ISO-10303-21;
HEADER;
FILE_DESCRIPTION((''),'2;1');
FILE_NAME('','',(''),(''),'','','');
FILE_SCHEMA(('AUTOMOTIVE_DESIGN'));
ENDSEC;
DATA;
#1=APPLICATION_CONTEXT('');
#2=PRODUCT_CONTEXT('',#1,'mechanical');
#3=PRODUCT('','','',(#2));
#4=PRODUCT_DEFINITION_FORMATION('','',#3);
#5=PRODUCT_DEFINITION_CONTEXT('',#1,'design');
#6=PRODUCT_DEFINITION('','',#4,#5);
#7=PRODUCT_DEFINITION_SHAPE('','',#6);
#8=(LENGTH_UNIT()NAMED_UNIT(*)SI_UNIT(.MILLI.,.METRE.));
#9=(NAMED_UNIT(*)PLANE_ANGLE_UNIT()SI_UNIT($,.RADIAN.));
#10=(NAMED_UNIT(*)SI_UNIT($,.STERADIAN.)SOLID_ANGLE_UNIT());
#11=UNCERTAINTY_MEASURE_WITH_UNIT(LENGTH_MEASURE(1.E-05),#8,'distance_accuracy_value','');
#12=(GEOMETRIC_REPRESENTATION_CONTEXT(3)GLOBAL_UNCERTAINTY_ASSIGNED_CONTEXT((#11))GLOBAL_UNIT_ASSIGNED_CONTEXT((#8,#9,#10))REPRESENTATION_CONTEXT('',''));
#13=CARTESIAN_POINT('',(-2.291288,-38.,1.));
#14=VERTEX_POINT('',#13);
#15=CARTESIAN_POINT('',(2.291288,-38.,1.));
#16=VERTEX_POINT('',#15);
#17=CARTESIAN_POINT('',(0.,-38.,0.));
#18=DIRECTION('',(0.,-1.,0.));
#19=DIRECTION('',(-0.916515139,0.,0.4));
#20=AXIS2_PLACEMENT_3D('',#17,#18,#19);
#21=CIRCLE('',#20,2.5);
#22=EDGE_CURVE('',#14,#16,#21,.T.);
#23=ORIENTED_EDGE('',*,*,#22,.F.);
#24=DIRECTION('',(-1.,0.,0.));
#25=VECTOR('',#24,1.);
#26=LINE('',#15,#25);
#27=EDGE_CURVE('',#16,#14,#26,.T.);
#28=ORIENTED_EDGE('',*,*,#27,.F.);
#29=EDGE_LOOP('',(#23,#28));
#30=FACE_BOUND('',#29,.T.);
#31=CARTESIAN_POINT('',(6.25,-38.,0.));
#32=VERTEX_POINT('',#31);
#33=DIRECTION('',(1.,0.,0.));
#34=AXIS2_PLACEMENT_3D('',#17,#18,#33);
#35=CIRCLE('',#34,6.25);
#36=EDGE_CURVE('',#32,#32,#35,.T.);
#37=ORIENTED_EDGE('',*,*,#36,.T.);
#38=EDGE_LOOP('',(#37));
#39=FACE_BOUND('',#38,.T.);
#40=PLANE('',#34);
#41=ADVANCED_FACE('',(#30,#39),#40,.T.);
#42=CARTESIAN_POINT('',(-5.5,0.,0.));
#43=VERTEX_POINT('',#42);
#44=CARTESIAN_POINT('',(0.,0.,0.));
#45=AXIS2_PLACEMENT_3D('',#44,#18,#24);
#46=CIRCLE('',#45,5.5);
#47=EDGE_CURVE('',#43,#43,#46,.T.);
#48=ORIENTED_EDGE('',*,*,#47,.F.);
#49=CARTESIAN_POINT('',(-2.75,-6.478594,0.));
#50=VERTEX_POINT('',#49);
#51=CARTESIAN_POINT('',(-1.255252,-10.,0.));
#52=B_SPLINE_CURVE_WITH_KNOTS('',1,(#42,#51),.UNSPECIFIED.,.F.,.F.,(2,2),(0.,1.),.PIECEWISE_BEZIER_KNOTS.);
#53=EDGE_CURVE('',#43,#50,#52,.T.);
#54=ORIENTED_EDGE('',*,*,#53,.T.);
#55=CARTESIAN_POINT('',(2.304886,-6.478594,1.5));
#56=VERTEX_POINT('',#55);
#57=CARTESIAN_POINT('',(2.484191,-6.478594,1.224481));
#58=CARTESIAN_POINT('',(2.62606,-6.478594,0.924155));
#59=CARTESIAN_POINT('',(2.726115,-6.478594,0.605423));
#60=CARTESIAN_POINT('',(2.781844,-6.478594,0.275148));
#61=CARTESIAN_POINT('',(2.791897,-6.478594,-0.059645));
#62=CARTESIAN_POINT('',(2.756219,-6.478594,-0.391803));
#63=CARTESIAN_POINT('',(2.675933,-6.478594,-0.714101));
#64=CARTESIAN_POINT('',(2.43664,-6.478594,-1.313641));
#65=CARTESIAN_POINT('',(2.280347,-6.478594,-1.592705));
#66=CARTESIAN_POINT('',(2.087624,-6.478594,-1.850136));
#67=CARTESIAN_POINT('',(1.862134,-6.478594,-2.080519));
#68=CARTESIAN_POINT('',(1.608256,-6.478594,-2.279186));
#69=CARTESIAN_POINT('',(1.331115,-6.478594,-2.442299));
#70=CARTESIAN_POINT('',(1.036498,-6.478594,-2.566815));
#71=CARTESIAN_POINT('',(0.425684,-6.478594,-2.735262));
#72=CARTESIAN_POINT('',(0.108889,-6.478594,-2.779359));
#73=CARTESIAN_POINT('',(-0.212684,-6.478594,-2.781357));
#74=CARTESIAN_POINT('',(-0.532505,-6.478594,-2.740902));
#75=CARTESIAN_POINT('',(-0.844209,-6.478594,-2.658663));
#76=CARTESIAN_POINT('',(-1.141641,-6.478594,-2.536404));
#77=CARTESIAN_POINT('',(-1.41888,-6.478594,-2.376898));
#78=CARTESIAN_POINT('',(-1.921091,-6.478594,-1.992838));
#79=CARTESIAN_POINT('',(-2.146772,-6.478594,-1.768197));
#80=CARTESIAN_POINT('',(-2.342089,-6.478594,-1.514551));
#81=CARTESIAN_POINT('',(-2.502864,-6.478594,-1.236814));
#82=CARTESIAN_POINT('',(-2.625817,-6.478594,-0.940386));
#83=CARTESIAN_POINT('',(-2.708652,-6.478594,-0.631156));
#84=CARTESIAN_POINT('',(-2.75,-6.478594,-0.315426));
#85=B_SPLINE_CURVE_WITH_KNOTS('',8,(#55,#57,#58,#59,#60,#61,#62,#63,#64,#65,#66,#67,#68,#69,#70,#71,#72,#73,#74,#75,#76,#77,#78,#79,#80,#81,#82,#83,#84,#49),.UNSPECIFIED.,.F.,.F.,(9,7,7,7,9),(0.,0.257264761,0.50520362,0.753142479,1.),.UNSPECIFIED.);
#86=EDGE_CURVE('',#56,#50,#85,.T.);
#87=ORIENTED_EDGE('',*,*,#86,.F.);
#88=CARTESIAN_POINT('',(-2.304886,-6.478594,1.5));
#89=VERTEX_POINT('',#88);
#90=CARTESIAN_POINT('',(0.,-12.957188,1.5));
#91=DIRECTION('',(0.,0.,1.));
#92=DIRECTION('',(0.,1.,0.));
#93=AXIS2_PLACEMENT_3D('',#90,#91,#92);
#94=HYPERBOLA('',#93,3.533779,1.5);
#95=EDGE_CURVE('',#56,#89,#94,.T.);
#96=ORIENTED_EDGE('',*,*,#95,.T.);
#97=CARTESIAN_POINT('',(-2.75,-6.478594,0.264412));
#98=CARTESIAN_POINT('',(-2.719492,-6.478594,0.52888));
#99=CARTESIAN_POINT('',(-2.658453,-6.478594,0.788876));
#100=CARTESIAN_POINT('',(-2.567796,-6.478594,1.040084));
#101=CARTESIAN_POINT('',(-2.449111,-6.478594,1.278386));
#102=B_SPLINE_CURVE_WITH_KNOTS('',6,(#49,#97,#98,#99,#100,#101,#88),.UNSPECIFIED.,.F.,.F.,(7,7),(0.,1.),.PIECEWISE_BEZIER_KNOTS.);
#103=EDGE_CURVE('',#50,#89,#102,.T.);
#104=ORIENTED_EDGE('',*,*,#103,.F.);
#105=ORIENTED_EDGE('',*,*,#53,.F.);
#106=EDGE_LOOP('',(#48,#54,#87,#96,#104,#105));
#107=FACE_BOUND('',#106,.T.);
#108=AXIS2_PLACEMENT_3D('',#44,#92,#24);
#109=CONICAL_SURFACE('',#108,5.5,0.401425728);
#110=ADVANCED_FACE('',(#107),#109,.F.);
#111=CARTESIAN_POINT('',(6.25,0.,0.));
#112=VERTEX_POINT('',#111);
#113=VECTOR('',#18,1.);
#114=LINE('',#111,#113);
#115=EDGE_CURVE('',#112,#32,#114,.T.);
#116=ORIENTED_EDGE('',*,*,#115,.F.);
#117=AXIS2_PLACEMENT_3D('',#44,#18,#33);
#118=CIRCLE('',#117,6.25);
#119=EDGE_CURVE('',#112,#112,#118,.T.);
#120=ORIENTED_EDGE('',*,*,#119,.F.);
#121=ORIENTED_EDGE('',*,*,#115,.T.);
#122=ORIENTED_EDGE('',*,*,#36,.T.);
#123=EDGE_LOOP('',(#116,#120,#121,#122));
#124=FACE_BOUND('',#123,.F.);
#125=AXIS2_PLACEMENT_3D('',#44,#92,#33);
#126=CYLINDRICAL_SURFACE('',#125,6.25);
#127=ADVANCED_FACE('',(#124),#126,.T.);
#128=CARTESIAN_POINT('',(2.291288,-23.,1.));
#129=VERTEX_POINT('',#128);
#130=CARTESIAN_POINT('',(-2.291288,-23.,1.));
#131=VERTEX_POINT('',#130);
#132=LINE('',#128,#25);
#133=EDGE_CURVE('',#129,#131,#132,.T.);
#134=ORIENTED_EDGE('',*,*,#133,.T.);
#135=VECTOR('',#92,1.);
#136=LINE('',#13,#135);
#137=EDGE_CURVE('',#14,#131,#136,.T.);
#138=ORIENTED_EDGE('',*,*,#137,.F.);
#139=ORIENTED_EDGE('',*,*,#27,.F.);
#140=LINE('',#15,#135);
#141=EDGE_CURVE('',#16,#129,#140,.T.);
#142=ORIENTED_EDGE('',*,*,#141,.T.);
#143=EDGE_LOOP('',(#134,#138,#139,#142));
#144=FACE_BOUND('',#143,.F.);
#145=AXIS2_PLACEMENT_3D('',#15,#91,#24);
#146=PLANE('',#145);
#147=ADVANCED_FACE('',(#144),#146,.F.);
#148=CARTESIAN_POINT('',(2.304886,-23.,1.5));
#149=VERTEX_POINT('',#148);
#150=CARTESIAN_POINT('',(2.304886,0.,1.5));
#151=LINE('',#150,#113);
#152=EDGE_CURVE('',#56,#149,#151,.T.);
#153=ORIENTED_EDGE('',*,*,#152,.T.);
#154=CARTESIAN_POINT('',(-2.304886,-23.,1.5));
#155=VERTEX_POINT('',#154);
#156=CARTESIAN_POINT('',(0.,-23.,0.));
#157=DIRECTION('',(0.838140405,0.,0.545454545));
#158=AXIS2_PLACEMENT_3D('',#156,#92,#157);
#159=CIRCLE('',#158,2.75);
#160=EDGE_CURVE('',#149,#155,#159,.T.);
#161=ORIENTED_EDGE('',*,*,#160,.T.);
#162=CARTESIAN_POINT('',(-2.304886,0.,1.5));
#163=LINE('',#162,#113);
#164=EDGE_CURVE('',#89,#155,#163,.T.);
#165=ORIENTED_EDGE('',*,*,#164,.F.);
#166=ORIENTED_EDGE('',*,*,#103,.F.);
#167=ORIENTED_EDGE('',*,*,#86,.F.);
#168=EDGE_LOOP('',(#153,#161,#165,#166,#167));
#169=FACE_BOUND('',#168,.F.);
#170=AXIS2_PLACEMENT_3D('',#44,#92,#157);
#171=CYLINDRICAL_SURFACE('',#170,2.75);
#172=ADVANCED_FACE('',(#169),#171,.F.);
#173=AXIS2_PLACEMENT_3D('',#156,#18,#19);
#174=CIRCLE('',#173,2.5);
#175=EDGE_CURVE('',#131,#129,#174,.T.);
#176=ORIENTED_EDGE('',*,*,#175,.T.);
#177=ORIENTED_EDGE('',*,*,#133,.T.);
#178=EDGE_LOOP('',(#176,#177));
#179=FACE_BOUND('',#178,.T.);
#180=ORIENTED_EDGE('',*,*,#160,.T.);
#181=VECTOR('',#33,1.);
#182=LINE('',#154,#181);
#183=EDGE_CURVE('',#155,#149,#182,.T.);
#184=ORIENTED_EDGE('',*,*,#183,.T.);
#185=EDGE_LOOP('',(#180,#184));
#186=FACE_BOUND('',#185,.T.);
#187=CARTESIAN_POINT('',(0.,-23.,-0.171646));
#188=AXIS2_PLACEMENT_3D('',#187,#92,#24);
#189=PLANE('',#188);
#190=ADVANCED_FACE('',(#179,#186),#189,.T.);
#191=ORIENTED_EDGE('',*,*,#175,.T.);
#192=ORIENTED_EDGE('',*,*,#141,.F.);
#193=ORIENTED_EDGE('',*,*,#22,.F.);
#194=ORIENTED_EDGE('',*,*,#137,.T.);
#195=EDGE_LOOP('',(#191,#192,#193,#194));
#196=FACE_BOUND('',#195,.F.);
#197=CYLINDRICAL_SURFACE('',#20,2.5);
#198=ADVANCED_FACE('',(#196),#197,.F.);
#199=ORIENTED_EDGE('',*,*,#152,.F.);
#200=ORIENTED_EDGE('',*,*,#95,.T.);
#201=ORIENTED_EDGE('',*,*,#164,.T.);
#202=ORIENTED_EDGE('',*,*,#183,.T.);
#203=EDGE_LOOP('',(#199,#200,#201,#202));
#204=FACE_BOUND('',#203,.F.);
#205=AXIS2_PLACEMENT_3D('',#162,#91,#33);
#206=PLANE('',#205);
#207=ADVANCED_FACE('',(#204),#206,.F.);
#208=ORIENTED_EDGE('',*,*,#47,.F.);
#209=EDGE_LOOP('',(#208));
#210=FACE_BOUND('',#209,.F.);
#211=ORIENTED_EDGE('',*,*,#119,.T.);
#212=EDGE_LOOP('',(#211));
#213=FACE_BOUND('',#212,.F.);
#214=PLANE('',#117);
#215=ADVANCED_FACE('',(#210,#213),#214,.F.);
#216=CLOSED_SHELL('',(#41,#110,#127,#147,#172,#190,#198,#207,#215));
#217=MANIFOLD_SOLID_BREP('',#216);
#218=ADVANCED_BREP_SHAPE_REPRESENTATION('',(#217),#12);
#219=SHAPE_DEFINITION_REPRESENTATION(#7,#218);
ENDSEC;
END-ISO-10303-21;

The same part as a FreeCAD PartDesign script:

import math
import FreeCAD as App
import Part
import Sketcher
Q = App.Units.Quantity

doc = App.newDocument("Part")
params = doc.addObject("Spreadsheet::Sheet", "Params")
for row, (alias, value) in enumerate([
    ("sketch1_diameter", "12.5 mm"),
    ("pad1_length", "38 mm"),
    ("sketch2_radius", "2.5 mm"),
    ("pocket1_length", "15 mm"),
    ("sketch3_radius", "2.75 mm"),
    ("pocket2_length", "23 mm"),
    ("sketch4_diameter", "11 mm"),
    ("pocket3_length", "10 mm"),
    ("pocket3_taper", "-23 deg"),
], start=1):
    params.set(f"A{row}", alias)
    params.set(f"B{row}", "=" + value)
    params.setAlias(f"B{row}", alias)

body = doc.addObject("PartDesign::Body", "Body")

# Sketch on XZ plane
sketch1 = doc.addObject("Sketcher::SketchObject", "Sketch")
body.addObject(sketch1)
sketch1.AttachmentSupport = (doc.XZ_Plane, [""])
sketch1.MapMode = "FlatFace"
sketch1.addGeometry(Part.Circle(App.Vector(0, 0, 0), App.Vector(0, 0, 1), 6), False)
sketch1.addConstraint(Sketcher.Constraint("Coincident", 0, 3, -1, 1))
sketch1.addConstraint(Sketcher.Constraint("Diameter", 0, Q("12.5 mm")))
sketch1.setExpression("Constraints[1]", "Params.sketch1_diameter")
pad1 = doc.addObject("PartDesign::Pad", "Pad")
body.addObject(pad1)
pad1.Profile = sketch1
pad1.setExpression("Length", "Params.pad1_length")

# Sketch on XZ plane
sketch2 = doc.addObject("Sketcher::SketchObject", "Sketch001")
body.addObject(sketch2)
sketch2.AttachmentSupport = (doc.XZ_Plane, [""])
sketch2.MapMode = "FlatFace"
sketch2.AttachmentOffset = App.Placement(App.Vector(0, 0, 38), App.Rotation())
sketch2.addGeometry(Part.ArcOfCircle(Part.Circle(App.Vector(0, 0, 0), App.Vector(0, 0, 1), 2.5), math.radians(156), math.radians(384)), False)
sketch2.addGeometry(Part.LineSegment(App.Vector(2.3, 1, 0), App.Vector(-2.3, 1, 0)), False)
sketch2.addConstraint(Sketcher.Constraint("Coincident", 0, 1, 1, 2))
sketch2.addConstraint(Sketcher.Constraint("Coincident", 1, 1, 0, 2))
sketch2.addConstraint(Sketcher.Constraint("Horizontal", 1))
sketch2.addConstraint(Sketcher.Constraint("Coincident", 0, 3, -1, 1))
sketch2.addConstraint(Sketcher.Constraint("Radius", 0, Q("2.5 mm")))
sketch2.addConstraint(Sketcher.Constraint("DistanceY", -1, 1, 0, 1, Q("1 mm")))
sketch2.setExpression("Constraints[4]", "Params.sketch2_radius")
pocket1 = doc.addObject("PartDesign::Pocket", "Pocket")
body.addObject(pocket1)
pocket1.Profile = sketch2
pocket1.setExpression("Length", "Params.pocket1_length")

# Sketch on XZ plane
sketch3 = doc.addObject("Sketcher::SketchObject", "Sketch002")
body.addObject(sketch3)
sketch3.AttachmentSupport = (doc.XZ_Plane, [""])
sketch3.MapMode = "FlatFace"
sketch3.addGeometry(Part.ArcOfCircle(Part.Circle(App.Vector(0, 0, 0), App.Vector(0, 0, 1), 2.8), math.radians(147), math.radians(393)), False)
sketch3.addGeometry(Part.LineSegment(App.Vector(-2.3, 1.5, 0), App.Vector(2.3, 1.5, 0)), False)
sketch3.addConstraint(Sketcher.Constraint("Coincident", 0, 1, 1, 1))
sketch3.addConstraint(Sketcher.Constraint("Coincident", 1, 2, 0, 2))
sketch3.addConstraint(Sketcher.Constraint("Horizontal", 1))
sketch3.addConstraint(Sketcher.Constraint("Coincident", 0, 3, -1, 1))
sketch3.addConstraint(Sketcher.Constraint("Radius", 0, Q("2.75 mm")))
sketch3.addConstraint(Sketcher.Constraint("DistanceY", -1, 1, 0, 1, Q("1.5 mm")))
sketch3.setExpression("Constraints[4]", "Params.sketch3_radius")
pocket2 = doc.addObject("PartDesign::Pocket", "Pocket001")
body.addObject(pocket2)
pocket2.Profile = sketch3
pocket2.setExpression("Length", "Params.pocket2_length")
pocket2.Reversed = True

# Sketch on XZ plane
sketch4 = doc.addObject("Sketcher::SketchObject", "Sketch003")
body.addObject(sketch4)
sketch4.AttachmentSupport = (doc.XZ_Plane, [""])
sketch4.MapMode = "FlatFace"
sketch4.addGeometry(Part.Circle(App.Vector(0, 0, 0), App.Vector(0, 0, 1), 6), False)
sketch4.addConstraint(Sketcher.Constraint("Coincident", 0, 3, -1, 1))
sketch4.addConstraint(Sketcher.Constraint("Diameter", 0, Q("11 mm")))
sketch4.setExpression("Constraints[1]", "Params.sketch4_diameter")
pocket3 = doc.addObject("PartDesign::Pocket", "Pocket002")
body.addObject(pocket3)
pocket3.Profile = sketch4
pocket3.setExpression("Length", "Params.pocket3_length")
pocket3.Reversed = True
pocket3.setExpression("TaperAngle", "Params.pocket3_taper")

doc.recompute()
